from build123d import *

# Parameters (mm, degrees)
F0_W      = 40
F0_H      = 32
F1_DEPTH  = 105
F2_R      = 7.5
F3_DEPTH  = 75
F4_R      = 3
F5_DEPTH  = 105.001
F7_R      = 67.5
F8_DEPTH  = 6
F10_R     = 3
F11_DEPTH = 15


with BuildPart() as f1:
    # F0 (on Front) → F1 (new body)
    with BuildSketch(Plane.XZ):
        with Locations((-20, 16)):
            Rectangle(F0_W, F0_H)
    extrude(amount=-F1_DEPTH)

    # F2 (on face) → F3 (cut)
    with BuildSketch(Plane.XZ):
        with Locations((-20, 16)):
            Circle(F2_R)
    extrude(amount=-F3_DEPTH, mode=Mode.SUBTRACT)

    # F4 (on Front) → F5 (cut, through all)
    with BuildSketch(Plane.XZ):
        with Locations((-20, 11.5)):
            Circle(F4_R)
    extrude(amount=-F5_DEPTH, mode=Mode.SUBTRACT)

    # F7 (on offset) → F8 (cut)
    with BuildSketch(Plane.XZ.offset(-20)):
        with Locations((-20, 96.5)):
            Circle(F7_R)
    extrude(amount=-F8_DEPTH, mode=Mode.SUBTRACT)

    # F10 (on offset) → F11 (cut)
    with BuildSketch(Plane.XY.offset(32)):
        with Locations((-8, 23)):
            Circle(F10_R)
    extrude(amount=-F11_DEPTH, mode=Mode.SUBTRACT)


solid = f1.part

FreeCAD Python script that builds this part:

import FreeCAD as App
import Part
import Sketcher
Q = App.Units.Quantity


def add_polygon(sketch, points):
    """Adds a closed chain of lines whose ends are joined by coincident constraints."""
    first, n = sketch.GeometryCount, len(points)
    for a, b in zip(points, points[1:] + points[:1]):
        sketch.addGeometry(Part.LineSegment(App.Vector(*a, 0), App.Vector(*b, 0)), False)
    for i in range(n):
        sketch.addConstraint(Sketcher.Constraint("Coincident", first + i, 2, first + (i + 1) % n, 1))

doc = App.newDocument("Part")
body = doc.addObject("PartDesign::Body", "Body")

sketch1 = body.newObject("Sketcher::SketchObject", "Sketch")
sketch1.AttachmentSupport = (doc.getObject("XZ_Plane"), [""])
sketch1.MapMode = "FlatFace"
add_polygon(sketch1, [(-40, 32), (-40, 0), (0, 0), (0, 32)])
sketch1.addConstraint([
    Sketcher.Constraint("Vertical", 0),
    Sketcher.Constraint("Horizontal", 1),
    Sketcher.Constraint("Vertical", 2),
    Sketcher.Constraint("Horizontal", 3),
    Sketcher.Constraint("Coincident", 1, 2, -1, 1),
    Sketcher.Constraint("DistanceX", 1, 1, 1, 2, Q("40 mm")),
    Sketcher.Constraint("DistanceY", 0, 2, 0, 1, Q("32 mm")),
])
pad1 = body.newObject("PartDesign::Pad", "Pad")
pad1.Profile = sketch1
pad1.Length = 105
pad1.Reversed = True

sketch2 = body.newObject("Sketcher::SketchObject", "Sketch001")
sketch2.AttachmentSupport = (doc.getObject("XZ_Plane"), [""])
sketch2.MapMode = "FlatFace"
sketch2.addGeometry(Part.Circle(App.Vector(-20, 16, 0), App.Vector(0, 0, 1), 7.5), False)
sketch2.addConstraint([
    Sketcher.Constraint("Diameter", 0, Q("15 mm")),
    Sketcher.Constraint("DistanceX", 0, 3, -1, 1, Q("20 mm")),
    Sketcher.Constraint("DistanceY", -1, 1, 0, 3, Q("16 mm")),
])
pocket1 = body.newObject("PartDesign::Pocket", "Pocket")
pocket1.Profile = sketch2
pocket1.Length = 75

sketch3 = body.newObject("Sketcher::SketchObject", "Sketch002")
sketch3.AttachmentSupport = (doc.getObject("XZ_Plane"), [""])
sketch3.MapMode = "FlatFace"
sketch3.addGeometry(Part.Circle(App.Vector(-20, 11.5, 0), App.Vector(0, 0, 1), 3), False)
sketch3.addConstraint([
    Sketcher.Constraint("Diameter", 0, Q("6 mm")),
    Sketcher.Constraint("DistanceX", 0, 3, -1, 1, Q("20 mm")),
    Sketcher.Constraint("DistanceY", -1, 1, 0, 3, Q("11.5 mm")),
])
pocket2 = body.newObject("PartDesign::Pocket", "Pocket001")
pocket2.Profile = sketch3
pocket2.Type = "ThroughAll"

sketch4 = body.newObject("Sketcher::SketchObject", "Sketch003")
sketch4.AttachmentSupport = (doc.getObject("XZ_Plane"), [""])
sketch4.MapMode = "FlatFace"
sketch4.AttachmentOffset = App.Placement(App.Vector(0, 0, -20), App.Rotation())
sketch4.addGeometry(Part.Circle(App.Vector(-20, 96.5, 0), App.Vector(0, 0, 1), 67.5), False)
sketch4.addConstraint([
    Sketcher.Constraint("Diameter", 0, Q("135 mm")),
    Sketcher.Constraint("DistanceX", 0, 3, -1, 1, Q("20 mm")),
    Sketcher.Constraint("DistanceY", -1, 1, 0, 3, Q("96.5 mm")),
])
pocket3 = body.newObject("PartDesign::Pocket", "Pocket002")
pocket3.Profile = sketch4
pocket3.Length = 6

sketch5 = body.newObject("Sketcher::SketchObject", "Sketch004")
sketch5.AttachmentSupport = (doc.getObject("XY_Plane"), [""])
sketch5.MapMode = "FlatFace"
sketch5.AttachmentOffset = App.Placement(App.Vector(0, 0, 32), App.Rotation())
sketch5.addGeometry(Part.Circle(App.Vector(-8, 23, 0), App.Vector(0, 0, 1), 3), False)
sketch5.addConstraint([
    Sketcher.Constraint("Diameter", 0, Q("6 mm")),
    Sketcher.Constraint("DistanceX", 0, 3, -1, 1, Q("8 mm")),
    Sketcher.Constraint("DistanceY", -1, 1, 0, 3, Q("23 mm")),
])
pocket4 = body.newObject("PartDesign::Pocket", "Pocket003")
pocket4.Profile = sketch5
pocket4.Length = 15

doc.recompute()
